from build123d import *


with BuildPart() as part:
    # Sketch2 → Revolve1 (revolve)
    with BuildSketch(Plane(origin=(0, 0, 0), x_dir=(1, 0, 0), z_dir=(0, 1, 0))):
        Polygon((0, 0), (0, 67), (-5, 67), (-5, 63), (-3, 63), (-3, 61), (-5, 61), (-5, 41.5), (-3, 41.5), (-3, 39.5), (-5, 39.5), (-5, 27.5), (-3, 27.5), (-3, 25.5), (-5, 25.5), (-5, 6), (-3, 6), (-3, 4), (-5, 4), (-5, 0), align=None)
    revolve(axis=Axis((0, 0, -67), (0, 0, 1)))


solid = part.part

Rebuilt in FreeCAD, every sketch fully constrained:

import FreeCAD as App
import Part
import Sketcher

V = App.Vector
Q = App.Units.Quantity


def add_polygon(sketch, points):
    """Adds a closed chain of lines whose ends are joined by coincident constraints."""
    first, n = sketch.GeometryCount, len(points)
    for a, b in zip(points, points[1:] + points[:1]):
        sketch.addGeometry(Part.LineSegment(App.Vector(*a, 0), App.Vector(*b, 0)), False)
    for i in range(n):
        sketch.addConstraint(Sketcher.Constraint("Coincident", first + i, 2, first + (i + 1) % n, 1))

doc = App.newDocument("Part")
body = doc.addObject("PartDesign::Body", "Body")

# Sketch on XZ plane
sketch1 = body.newObject("Sketcher::SketchObject", "Sketch")
sketch1.AttachmentSupport = (doc.getObject("XZ_Plane"), [""])
sketch1.MapMode = "FlatFace"
add_polygon(sketch1, [(0, 0), (0, -67), (-5, -67), (-5, -63), (-3, -63), (-3, -61), (-5, -61), (-5, -41.5), (-3, -41.5), (-3, -39.5), (-5, -39.5), (-5, -27.5), (-3, -27.5), (-3, -25.5), (-5, -25.5), (-5, -6), (-3, -6), (-3, -4), (-5, -4), (-5, 0)])  # lines 0-19
sketch1.addConstraint([
    Sketcher.Constraint("Vertical", 0),
    Sketcher.Constraint("Horizontal", 1),
    Sketcher.Constraint("Vertical", 2),
    Sketcher.Constraint("Horizontal", 3),
    Sketcher.Constraint("Vertical", 4),
    Sketcher.Constraint("Horizontal", 5),
    Sketcher.Constraint("Vertical", 6),
    Sketcher.Constraint("Horizontal", 7),
    Sketcher.Constraint("Vertical", 8),
    Sketcher.Constraint("Horizontal", 9),
    Sketcher.Constraint("Vertical", 10),
    Sketcher.Constraint("Horizontal", 11),
    Sketcher.Constraint("Vertical", 12),
    Sketcher.Constraint("Horizontal", 13),
    Sketcher.Constraint("Vertical", 14),
    Sketcher.Constraint("Horizontal", 15),
    Sketcher.Constraint("Vertical", 16),
    Sketcher.Constraint("Horizontal", 17),
    Sketcher.Constraint("Vertical", 18),
    Sketcher.Constraint("Horizontal", 19),
    Sketcher.Constraint("Coincident", 19, 2, -1, 1),
    Sketcher.Constraint("Vertical", 2, 2, 5, 2),
    Sketcher.Constraint("Vertical", 4, 2, 7, 2),
    Sketcher.Constraint("Vertical", 6, 2, 9, 2),
    Sketcher.Constraint("Vertical", 8, 2, 11, 2),
    Sketcher.Constraint("Vertical", 10, 2, 13, 2),
    Sketcher.Constraint("Vertical", 12, 2, 15, 2),
    Sketcher.Constraint("Vertical", 14, 2, 17, 2),
    Sketcher.Constraint("Equal", 17, 4),
    Sketcher.Constraint("Equal", 4, 8),
    Sketcher.Constraint("Equal", 8, 12),
    Sketcher.Constraint("Equal", 6, 14),
    Sketcher.Constraint("Equal", 12, 16),
    Sketcher.Constraint("Equal", 2, 18),
    Sketcher.Constraint("DistanceX", 1, 2, 1, 1, Q("5 mm")),
    Sketcher.Constraint("DistanceX", 3, 1, 3, 2, Q("2 mm")),
    Sketcher.Constraint("DistanceY", 0, 2, 0, 1, Q("67 mm")),
    Sketcher.Constraint("DistanceY", 2, 1, 2, 2, Q("4 mm")),
    Sketcher.Constraint("DistanceY", 10, 1, 10, 2, Q("12 mm")),
])
revolution = body.newObject("PartDesign::Revolution", "Revolution")
revolution.Profile = sketch1
revolution.ReferenceAxis = (sketch1, ["V_Axis"])
revolution.Angle = 360

doc.recompute()
